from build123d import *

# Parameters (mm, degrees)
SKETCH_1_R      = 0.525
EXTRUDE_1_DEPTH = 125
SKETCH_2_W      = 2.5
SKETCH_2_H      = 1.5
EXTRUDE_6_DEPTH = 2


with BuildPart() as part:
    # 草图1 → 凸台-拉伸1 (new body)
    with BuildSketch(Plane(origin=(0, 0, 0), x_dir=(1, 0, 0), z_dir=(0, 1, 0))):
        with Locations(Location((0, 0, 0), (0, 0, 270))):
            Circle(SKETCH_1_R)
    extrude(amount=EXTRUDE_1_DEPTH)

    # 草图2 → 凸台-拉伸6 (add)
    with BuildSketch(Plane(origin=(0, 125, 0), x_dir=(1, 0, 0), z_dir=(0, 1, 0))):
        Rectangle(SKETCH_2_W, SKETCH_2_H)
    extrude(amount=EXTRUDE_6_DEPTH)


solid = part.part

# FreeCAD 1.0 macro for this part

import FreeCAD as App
import Part
import Sketcher

V = App.Vector
Q = App.Units.Quantity


def add_polygon(sketch, points):
    """Adds a closed chain of lines whose ends are joined by coincident constraints."""
    first, n = sketch.GeometryCount, len(points)
    for a, b in zip(points, points[1:] + points[:1]):
        sketch.addGeometry(Part.LineSegment(App.Vector(*a, 0), App.Vector(*b, 0)), False)
    for i in range(n):
        sketch.addConstraint(Sketcher.Constraint("Coincident", first + i, 2, first + (i + 1) % n, 1))

doc = App.newDocument("Part")
body = doc.addObject("PartDesign::Body", "Body")

sketch1 = doc.addObject("Sketcher::SketchObject", "Sketch")
body.addObject(sketch1)
sketch1.AttachmentSupport = (doc.XZ_Plane, [""])
sketch1.MapMode = "FlatFace"
sketch1.addGeometry(Part.Circle(V(0, 0, 0), V(0, 0, 1), 0.5), False)
sketch1.addConstraint([
    Sketcher.Constraint("Coincident", 0, 3, -1, 1),
    Sketcher.Constraint("Diameter", 0, Q("1.05 mm")),
])
pad1 = doc.addObject("PartDesign::Pad", "Pad")
body.addObject(pad1)
pad1.Profile = sketch1
pad1.Length = 125
pad1.Reversed = True

sketch2 = doc.addObject("Sketcher::SketchObject", "Sketch001")
body.addObject(sketch2)
sketch2.AttachmentSupport = (doc.XZ_Plane, [""])
sketch2.MapMode = "FlatFace"
sketch2.AttachmentOffset = App.Placement(V(0, 0, -125), App.Rotation())
add_polygon(sketch2, [(-1.2, -0.8), (-1.2, 0.8), (1.2, 0.8), (1.2, -0.8)])
sketch2.addConstraint([
    Sketcher.Constraint("Vertical", 0),
    Sketcher.Constraint("Horizontal", 1),
    Sketcher.Constraint("Vertical", 2),
    Sketcher.Constraint("Horizontal", 3),
    Sketcher.Constraint("Symmetric", 0, 2, 2, 2, -1, 1),
    Sketcher.Constraint("DistanceX", 1, 1, 1, 2, Q("2.5 mm")),
    Sketcher.Constraint("DistanceY", 0, 1, 0, 2, Q("1.5 mm")),
])
pad2 = doc.addObject("PartDesign::Pad", "Pad001")
body.addObject(pad2)
pad2.Profile = sketch2
pad2.Length = 2
pad2.Reversed = True

doc.recompute()
